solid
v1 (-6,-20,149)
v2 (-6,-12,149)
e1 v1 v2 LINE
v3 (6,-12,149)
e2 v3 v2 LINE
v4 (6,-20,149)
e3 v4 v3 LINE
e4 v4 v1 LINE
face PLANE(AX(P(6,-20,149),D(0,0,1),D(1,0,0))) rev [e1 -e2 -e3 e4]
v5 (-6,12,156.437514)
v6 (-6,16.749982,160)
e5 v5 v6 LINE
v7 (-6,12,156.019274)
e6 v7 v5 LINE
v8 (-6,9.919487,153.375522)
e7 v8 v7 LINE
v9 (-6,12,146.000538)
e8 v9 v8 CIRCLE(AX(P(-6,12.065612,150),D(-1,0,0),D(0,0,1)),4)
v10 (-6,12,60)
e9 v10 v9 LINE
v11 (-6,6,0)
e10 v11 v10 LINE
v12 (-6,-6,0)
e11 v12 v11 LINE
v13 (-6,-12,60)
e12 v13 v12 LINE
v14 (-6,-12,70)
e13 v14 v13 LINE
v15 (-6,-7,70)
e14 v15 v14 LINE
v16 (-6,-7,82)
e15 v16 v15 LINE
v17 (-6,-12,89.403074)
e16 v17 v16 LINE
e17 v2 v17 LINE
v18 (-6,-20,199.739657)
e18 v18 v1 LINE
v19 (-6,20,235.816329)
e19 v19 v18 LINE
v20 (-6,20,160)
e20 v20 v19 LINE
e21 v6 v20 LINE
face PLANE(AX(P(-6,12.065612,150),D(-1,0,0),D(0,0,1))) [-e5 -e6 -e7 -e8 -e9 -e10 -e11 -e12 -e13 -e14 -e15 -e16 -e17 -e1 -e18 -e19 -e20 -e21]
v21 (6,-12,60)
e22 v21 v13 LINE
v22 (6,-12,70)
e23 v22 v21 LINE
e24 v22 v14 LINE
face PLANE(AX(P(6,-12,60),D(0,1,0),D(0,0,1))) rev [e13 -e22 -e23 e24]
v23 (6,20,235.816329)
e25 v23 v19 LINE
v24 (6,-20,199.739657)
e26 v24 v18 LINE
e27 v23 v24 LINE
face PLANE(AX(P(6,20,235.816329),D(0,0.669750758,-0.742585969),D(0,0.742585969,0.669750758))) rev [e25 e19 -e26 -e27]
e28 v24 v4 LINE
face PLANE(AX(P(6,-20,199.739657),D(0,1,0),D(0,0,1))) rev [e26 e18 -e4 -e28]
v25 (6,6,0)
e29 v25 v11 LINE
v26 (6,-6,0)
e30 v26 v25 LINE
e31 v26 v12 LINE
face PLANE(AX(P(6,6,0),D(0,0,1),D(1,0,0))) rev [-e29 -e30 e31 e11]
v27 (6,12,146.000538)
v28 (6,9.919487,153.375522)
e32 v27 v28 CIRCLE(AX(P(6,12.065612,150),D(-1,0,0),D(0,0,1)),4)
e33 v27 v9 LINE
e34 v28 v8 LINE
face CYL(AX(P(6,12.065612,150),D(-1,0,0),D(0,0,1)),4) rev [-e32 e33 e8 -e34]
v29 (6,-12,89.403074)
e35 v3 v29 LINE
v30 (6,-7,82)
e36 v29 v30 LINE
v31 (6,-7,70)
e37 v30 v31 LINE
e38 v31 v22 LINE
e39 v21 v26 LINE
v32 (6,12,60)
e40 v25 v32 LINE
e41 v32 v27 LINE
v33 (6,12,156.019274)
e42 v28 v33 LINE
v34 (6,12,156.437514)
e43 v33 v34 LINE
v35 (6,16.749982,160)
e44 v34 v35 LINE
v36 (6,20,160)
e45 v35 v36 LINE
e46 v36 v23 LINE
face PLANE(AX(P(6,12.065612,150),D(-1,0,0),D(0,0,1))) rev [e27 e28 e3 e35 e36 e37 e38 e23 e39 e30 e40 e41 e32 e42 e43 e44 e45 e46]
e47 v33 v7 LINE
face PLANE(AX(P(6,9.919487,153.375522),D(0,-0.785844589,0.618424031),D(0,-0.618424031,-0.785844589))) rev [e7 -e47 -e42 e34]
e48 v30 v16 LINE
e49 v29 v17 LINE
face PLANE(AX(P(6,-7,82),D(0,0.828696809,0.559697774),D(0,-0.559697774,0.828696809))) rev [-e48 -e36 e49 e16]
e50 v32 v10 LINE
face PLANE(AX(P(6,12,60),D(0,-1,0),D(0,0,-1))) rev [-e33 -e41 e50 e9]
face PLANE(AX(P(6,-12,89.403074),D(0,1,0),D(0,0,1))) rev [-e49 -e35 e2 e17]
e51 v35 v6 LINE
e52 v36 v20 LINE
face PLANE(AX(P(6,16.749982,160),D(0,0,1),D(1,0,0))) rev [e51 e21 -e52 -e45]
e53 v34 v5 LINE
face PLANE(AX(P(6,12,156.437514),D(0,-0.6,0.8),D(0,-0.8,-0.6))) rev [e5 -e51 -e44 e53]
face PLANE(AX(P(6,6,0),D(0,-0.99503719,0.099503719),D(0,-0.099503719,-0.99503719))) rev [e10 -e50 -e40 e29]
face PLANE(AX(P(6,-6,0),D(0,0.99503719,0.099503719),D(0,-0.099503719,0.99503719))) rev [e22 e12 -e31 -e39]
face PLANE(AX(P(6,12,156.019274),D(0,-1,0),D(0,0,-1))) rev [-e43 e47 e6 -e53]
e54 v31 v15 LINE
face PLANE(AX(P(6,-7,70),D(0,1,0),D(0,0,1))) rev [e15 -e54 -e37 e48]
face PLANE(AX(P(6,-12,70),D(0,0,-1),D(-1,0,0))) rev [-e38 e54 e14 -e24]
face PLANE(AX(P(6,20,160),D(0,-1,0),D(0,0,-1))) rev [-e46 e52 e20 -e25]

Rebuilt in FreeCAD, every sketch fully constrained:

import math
import FreeCAD as App
import Part
import Sketcher
Q = App.Units.Quantity

doc = App.newDocument("Part")
body = doc.addObject("PartDesign::Body", "Body")

sketch1 = doc.addObject("Sketcher::SketchObject", "Sketch")
body.addObject(sketch1)
sketch1.AttachmentSupport = (doc.YZ_Plane, [""])
sketch1.MapMode = "FlatFace"
sketch1.addGeometry([
    Part.LineSegment(App.Vector(-6, 0, 0), App.Vector(6, 0, 0)),
    Part.LineSegment(App.Vector(6, 0, 0), App.Vector(12, 60, 0)),
    Part.LineSegment(App.Vector(12, 60, 0), App.Vector(12, 146, 0)),
    Part.ArcOfCircle(Part.Circle(App.Vector(12.07, 150, 0), App.Vector(0, 0, 1), 4), math.radians(122), math.radians(269)),
    Part.LineSegment(App.Vector(9.92, 153.38, 0), App.Vector(12, 156.02, 0)),
    Part.LineSegment(App.Vector(12, 156.02, 0), App.Vector(12, 156.44, 0)),
    Part.LineSegment(App.Vector(12, 156.44, 0), App.Vector(16.75, 160, 0)),
    Part.LineSegment(App.Vector(16.75, 160, 0), App.Vector(20, 160, 0)),
    Part.LineSegment(App.Vector(20, 160, 0), App.Vector(20, 235.82, 0)),
    Part.LineSegment(App.Vector(20, 235.82, 0), App.Vector(-20, 199.74, 0)),
    Part.LineSegment(App.Vector(-20, 199.74, 0), App.Vector(-20, 149, 0)),
    Part.LineSegment(App.Vector(-20, 149, 0), App.Vector(-12, 149, 0)),
    Part.LineSegment(App.Vector(-12, 149, 0), App.Vector(-12, 89.4, 0)),
    Part.LineSegment(App.Vector(-12, 89.4, 0), App.Vector(-7, 82, 0)),
    Part.LineSegment(App.Vector(-7, 82, 0), App.Vector(-7, 70, 0)),
    Part.LineSegment(App.Vector(-7, 70, 0), App.Vector(-12, 70, 0)),
    Part.LineSegment(App.Vector(-12, 70, 0), App.Vector(-12, 60, 0)),
    Part.LineSegment(App.Vector(-12, 60, 0), App.Vector(-6, 0, 0)),
], False)
sketch1.addConstraint([
    Sketcher.Constraint("Coincident", 0, 2, 1, 1),
    Sketcher.Constraint("Coincident", 1, 2, 2, 1),
    Sketcher.Constraint("Coincident", 2, 2, 3, 2),
    Sketcher.Constraint("Coincident", 3, 1, 4, 1),
    Sketcher.Constraint("Coincident", 4, 2, 5, 1),
    Sketcher.Constraint("Coincident", 5, 2, 6, 1),
    Sketcher.Constraint("Coincident", 6, 2, 7, 1),
    Sketcher.Constraint("Coincident", 7, 2, 8, 1),
    Sketcher.Constraint("Coincident", 8, 2, 9, 1),
    Sketcher.Constraint("Coincident", 9, 2, 10, 1),
    Sketcher.Constraint("Coincident", 10, 2, 11, 1),
    Sketcher.Constraint("Coincident", 11, 2, 12, 1),
    Sketcher.Constraint("Coincident", 12, 2, 13, 1),
    Sketcher.Constraint("Coincident", 13, 2, 14, 1),
    Sketcher.Constraint("Coincident", 14, 2, 15, 1),
    Sketcher.Constraint("Coincident", 15, 2, 16, 1),
    Sketcher.Constraint("Coincident", 16, 2, 17, 1),
    Sketcher.Constraint("Coincident", 17, 2, 0, 1),
    Sketcher.Constraint("Horizontal", 0),
    Sketcher.Constraint("Vertical", 2),
    Sketcher.Constraint("Vertical", 5),
    Sketcher.Constraint("Horizontal", 7),
    Sketcher.Constraint("Vertical", 8),
    Sketcher.Constraint("Vertical", 10),
    Sketcher.Constraint("Horizontal", 11),
    Sketcher.Constraint("Vertical", 12),
    Sketcher.Constraint("Vertical", 14),
    Sketcher.Constraint("Horizontal", 15),
    Sketcher.Constraint("Vertical", 16),
    Sketcher.Constraint("Symmetric", 0, 2, 17, 2, -1, 1),
    Sketcher.Constraint("Symmetric", 1, 2, 16, 2, -2),
    Sketcher.Constraint("Vertical", 2, 2, 4, 2),
    Sketcher.Constraint("Vertical", 12, 2, 15, 2),
    Sketcher.Constraint("Equal", 0, 14),
    Sketcher.Constraint("Radius", 3, Q("4 mm")),
    Sketcher.Constraint("DistanceX", 0, 1, 0, 2, Q("12 mm")),
    Sketcher.Constraint("DistanceX", 11, 1, 11, 2, Q("8 mm")),
    Sketcher.Constraint("DistanceX", 15, 2, 15, 1, Q("5 mm")),
    Sketcher.Constraint("DistanceY", 16, 2, 16, 1, Q("10 mm")),
    Sketcher.Constraint("DistanceY", -1, 1, 3, 3, Q("150 mm")),
    Sketcher.Constraint("DistanceX", -1, 1, 1, 2, Q("12 mm")),
    Sketcher.Constraint("DistanceY", -1, 1, 1, 2, Q("60 mm")),
    Sketcher.Constraint("DistanceY", -1, 1, 6, 2, Q("160 mm")),
    Sketcher.Constraint("DistanceX", -1, 1, 7, 2, Q("20 mm")),
    Sketcher.Constraint("DistanceY", -1, 1, 10, 2, Q("149 mm")),
    Sketcher.Constraint("DistanceX", 7, 1, 7, 2, Q("3.250018 mm")),
    Sketcher.Constraint("DistanceY", 2, 1, 2, 2, Q("86.000538 mm")),
    Sketcher.Constraint("DistanceY", 5, 1, 5, 2, Q("0.41824 mm")),
    Sketcher.Constraint("DistanceY", 8, 1, 8, 2, Q("75.816329 mm")),
    Sketcher.Constraint("DistanceY", 10, 2, 10, 1, Q("50.739657 mm")),
    Sketcher.Constraint("DistanceY", 12, 2, 12, 1, Q("59.596926 mm")),
    Sketcher.Constraint("DistanceY", -1, 1, 3, 1, Q("153.375522 mm")),
    Sketcher.Constraint("DistanceY", 3, 1, 4, 2, Q("2.643752 mm")),
])
pad1 = doc.addObject("PartDesign::Pad", "Pad")
body.addObject(pad1)
pad1.Profile = sketch1
pad1.Length = 12
pad1.Midplane = True

doc.recompute()
